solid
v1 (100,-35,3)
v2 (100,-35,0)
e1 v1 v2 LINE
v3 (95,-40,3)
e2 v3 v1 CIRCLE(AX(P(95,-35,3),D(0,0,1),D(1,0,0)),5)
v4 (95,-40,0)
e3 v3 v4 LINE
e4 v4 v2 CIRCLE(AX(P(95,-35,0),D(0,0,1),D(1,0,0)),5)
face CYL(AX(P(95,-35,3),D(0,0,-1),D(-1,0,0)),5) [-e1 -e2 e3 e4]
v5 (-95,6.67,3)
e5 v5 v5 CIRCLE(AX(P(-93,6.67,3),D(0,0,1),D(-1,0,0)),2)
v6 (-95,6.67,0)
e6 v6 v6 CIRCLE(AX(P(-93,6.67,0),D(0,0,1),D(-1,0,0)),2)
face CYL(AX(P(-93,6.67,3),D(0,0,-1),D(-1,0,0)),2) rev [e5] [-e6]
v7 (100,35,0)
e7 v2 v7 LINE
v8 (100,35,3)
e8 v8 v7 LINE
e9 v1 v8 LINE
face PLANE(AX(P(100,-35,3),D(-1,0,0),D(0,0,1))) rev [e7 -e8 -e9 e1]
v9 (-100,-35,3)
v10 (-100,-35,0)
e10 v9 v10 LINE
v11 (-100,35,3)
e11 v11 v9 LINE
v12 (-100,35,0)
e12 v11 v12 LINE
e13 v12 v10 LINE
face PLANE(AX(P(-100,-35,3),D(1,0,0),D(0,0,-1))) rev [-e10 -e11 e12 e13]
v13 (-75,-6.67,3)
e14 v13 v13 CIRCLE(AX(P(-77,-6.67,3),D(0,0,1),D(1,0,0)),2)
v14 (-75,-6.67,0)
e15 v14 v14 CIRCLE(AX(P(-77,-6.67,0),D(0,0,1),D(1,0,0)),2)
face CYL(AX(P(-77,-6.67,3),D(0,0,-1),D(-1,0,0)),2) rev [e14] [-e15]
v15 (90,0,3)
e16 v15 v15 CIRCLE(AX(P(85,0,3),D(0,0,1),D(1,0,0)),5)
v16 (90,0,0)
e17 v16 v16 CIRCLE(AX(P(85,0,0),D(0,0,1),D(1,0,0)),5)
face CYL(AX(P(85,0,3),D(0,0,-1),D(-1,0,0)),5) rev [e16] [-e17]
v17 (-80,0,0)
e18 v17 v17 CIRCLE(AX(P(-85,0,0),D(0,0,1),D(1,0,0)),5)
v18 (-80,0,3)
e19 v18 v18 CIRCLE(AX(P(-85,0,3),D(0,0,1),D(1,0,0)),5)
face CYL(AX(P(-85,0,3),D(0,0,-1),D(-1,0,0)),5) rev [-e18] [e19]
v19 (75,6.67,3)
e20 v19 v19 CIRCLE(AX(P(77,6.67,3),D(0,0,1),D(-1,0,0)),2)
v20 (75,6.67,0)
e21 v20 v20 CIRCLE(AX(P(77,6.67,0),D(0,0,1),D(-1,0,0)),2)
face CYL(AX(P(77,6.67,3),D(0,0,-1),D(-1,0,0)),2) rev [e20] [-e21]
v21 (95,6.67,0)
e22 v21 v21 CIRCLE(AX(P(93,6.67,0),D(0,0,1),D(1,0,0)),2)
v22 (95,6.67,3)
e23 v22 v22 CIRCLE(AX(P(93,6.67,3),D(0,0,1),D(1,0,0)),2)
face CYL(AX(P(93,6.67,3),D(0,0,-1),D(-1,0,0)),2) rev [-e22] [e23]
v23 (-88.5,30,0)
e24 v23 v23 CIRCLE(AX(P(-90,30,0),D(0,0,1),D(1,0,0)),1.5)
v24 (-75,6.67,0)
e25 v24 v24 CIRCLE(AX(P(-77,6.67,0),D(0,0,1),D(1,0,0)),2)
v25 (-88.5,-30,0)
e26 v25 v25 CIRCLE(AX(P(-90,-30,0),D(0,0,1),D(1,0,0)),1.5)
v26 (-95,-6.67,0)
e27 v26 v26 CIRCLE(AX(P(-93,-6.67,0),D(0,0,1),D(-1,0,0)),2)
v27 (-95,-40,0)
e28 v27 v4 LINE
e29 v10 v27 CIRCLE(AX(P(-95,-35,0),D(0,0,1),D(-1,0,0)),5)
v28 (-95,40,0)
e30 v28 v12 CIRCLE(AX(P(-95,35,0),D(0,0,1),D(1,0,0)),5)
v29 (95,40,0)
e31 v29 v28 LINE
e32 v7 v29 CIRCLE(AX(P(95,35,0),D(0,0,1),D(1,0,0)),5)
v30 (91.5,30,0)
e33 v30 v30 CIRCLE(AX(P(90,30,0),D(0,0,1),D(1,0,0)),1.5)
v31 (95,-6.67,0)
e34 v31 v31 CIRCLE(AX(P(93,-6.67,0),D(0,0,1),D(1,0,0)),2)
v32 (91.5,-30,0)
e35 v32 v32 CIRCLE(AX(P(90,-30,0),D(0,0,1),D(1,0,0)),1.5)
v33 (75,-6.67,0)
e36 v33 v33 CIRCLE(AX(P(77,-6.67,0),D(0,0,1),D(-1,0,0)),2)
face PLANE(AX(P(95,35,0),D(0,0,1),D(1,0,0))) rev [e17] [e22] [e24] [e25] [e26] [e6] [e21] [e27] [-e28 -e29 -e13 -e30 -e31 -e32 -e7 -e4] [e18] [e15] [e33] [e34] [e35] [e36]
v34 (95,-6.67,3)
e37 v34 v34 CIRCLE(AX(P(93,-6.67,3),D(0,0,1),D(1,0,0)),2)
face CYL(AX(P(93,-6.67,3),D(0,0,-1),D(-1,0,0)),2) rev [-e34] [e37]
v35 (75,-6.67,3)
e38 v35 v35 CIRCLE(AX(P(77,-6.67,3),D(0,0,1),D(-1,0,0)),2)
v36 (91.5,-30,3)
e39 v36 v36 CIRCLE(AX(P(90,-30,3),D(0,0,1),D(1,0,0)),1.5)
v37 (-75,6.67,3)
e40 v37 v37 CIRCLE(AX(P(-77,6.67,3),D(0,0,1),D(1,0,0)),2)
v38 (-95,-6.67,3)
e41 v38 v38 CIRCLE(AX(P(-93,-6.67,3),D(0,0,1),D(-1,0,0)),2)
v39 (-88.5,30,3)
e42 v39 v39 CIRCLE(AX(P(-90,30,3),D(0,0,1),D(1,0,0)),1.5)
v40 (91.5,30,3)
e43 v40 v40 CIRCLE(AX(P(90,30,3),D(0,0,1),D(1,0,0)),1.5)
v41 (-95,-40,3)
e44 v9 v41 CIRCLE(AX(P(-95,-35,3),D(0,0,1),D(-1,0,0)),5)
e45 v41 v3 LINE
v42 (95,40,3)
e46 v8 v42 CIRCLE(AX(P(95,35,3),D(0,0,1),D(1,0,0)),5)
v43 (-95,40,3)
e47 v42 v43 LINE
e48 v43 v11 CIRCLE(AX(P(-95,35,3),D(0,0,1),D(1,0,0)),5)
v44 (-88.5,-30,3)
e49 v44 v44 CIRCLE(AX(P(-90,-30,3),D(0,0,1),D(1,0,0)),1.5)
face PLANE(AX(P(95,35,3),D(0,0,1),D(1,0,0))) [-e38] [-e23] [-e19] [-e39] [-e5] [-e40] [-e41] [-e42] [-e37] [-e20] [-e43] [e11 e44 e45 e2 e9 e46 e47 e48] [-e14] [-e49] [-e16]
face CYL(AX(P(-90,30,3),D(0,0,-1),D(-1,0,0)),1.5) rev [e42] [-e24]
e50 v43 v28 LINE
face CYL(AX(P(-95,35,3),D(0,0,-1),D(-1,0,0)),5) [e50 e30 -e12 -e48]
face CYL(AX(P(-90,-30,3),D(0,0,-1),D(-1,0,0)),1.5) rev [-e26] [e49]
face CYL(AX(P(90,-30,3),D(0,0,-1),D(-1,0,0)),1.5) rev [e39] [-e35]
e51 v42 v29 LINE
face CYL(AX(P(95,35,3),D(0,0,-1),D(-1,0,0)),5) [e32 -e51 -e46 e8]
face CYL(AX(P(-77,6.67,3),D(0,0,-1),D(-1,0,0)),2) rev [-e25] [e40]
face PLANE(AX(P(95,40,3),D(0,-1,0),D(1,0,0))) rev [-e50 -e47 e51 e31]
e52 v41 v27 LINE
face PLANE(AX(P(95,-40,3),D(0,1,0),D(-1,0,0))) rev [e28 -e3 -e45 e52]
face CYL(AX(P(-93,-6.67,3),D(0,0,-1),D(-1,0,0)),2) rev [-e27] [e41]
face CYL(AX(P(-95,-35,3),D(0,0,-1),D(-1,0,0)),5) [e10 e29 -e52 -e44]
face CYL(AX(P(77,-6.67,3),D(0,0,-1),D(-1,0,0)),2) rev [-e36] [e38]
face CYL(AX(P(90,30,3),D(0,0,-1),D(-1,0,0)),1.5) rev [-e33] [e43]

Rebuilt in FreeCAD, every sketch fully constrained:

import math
import FreeCAD as App
import Part
import Sketcher
from FreeCAD import Vector
Q = App.Units.Quantity

doc = App.newDocument("Part")
body = doc.addObject("PartDesign::Body", "Body")

# Sketch on XY plane
sketch1 = body.newObject("Sketcher::SketchObject", "Sketch")
sketch1.AttachmentSupport = (doc.getObject("XY_Plane"), [""])
sketch1.MapMode = "FlatFace"
sketch1.addGeometry([
    Part.LineSegment(Vector(-95, -40, 0), Vector(95, -40, 0)),  # 0
    Part.ArcOfCircle(Part.Circle(Vector(95, -35, 0), Vector(0, 0, 1), 5), math.radians(-90), math.radians(0)),  # 1
    Part.LineSegment(Vector(100, -35, 0), Vector(100, 35, 0)),  # 2
    Part.ArcOfCircle(Part.Circle(Vector(95, 35, 0), Vector(0, 0, 1), 5), math.radians(0), math.radians(90)),  # 3
    Part.LineSegment(Vector(95, 40, 0), Vector(-95, 40, 0)),  # 4
    Part.ArcOfCircle(Part.Circle(Vector(-95, 35, 0), Vector(0, 0, 1), 5), math.radians(90), math.radians(180)),  # 5
    Part.LineSegment(Vector(-100, 35, 0), Vector(-100, -35, 0)),  # 6
    Part.ArcOfCircle(Part.Circle(Vector(-95, -35, 0), Vector(0, 0, 1), 5), math.radians(180), math.radians(270)),  # 7
    Part.Circle(Vector(90, -30, 0), Vector(0, 0, 1), 1.5),  # 8
    Part.Circle(Vector(93, -6.7, 0), Vector(0, 0, 1), 2),  # 9
    Part.Circle(Vector(77, -6.7, 0), Vector(0, 0, 1), 2),  # 10
    Part.Circle(Vector(-90, -30, 0), Vector(0, 0, 1), 1.5),  # 11
    Part.Circle(Vector(-77, -6.7, 0), Vector(0, 0, 1), 2),  # 12
    Part.Circle(Vector(-93, -6.7, 0), Vector(0, 0, 1), 2),  # 13
    Part.Circle(Vector(85, 0, 0), Vector(0, 0, 1), 5),  # 14
    Part.Circle(Vector(93, 6.7, 0), Vector(0, 0, 1), 2),  # 15
    Part.Circle(Vector(77, 6.7, 0), Vector(0, 0, 1), 2),  # 16
    Part.Circle(Vector(90, 30, 0), Vector(0, 0, 1), 1.5),  # 17
    Part.Circle(Vector(-85, 0, 0), Vector(0, 0, 1), 5),  # 18
    Part.Circle(Vector(-77, 6.7, 0), Vector(0, 0, 1), 2),  # 19
    Part.Circle(Vector(-93, 6.7, 0), Vector(0, 0, 1), 2),  # 20
    Part.Circle(Vector(-90, 30, 0), Vector(0, 0, 1), 1.5),  # 21
], False)
sketch1.addConstraint([
    Sketcher.Constraint("Tangent", 0, 2, 1, 1),
    Sketcher.Constraint("Tangent", 1, 2, 2, 1),
    Sketcher.Constraint("Tangent", 2, 2, 3, 1),
    Sketcher.Constraint("Tangent", 3, 2, 4, 1),
    Sketcher.Constraint("Tangent", 4, 2, 5, 1),
    Sketcher.Constraint("Tangent", 5, 2, 6, 1),
    Sketcher.Constraint("Tangent", 6, 2, 7, 1),
    Sketcher.Constraint("Tangent", 7, 2, 0, 1),
    Sketcher.Constraint("Horizontal", 0),
    Sketcher.Constraint("Vertical", 2),
    Sketcher.Constraint("Horizontal", 4),
    Sketcher.Constraint("Vertical", 6),
    Sketcher.Constraint("Equal", 1, 3),
    Sketcher.Constraint("Equal", 3, 5),
    Sketcher.Constraint("Equal", 5, 7),
    Sketcher.Constraint("Equal", 9, 10),
    Sketcher.Constraint("Equal", 8, 11),
    Sketcher.Constraint("Equal", 10, 12),
    Sketcher.Constraint("Equal", 12, 13),
    Sketcher.Constraint("Equal", 7, 14),
    Sketcher.Constraint("Equal", 13, 15),
    Sketcher.Constraint("Equal", 15, 16),
    Sketcher.Constraint("Equal", 11, 17),
    Sketcher.Constraint("Equal", 14, 18),
    Sketcher.Constraint("Equal", 16, 19),
    Sketcher.Constraint("Equal", 19, 20),
    Sketcher.Constraint("Equal", 17, 21),
    Sketcher.Constraint("Symmetric", 1, 3, 5, 3, -1, 1),
    Sketcher.Constraint("Symmetric", 13, 3, 15, 3, -1, 1),
    Sketcher.Constraint("Symmetric", 12, 3, 16, 3, -1, 1),
    Sketcher.Constraint("Symmetric", 11, 3, 17, 3, -1, 1),
    Sketcher.Constraint("Symmetric", 14, 3, 18, 3, -1, 1),
    Sketcher.Constraint("Symmetric", 10, 3, 19, 3, -1, 1),
    Sketcher.Constraint("Symmetric", 9, 3, 20, 3, -1, 1),
    Sketcher.Constraint("Symmetric", 8, 3, 21, 3, -1, 1),
    Sketcher.Constraint("Symmetric", 8, 3, 11, 3, -2),
    Sketcher.Constraint("Symmetric", 10, 3, 12, 3, -2),
    Sketcher.Constraint("Symmetric", 9, 3, 13, 3, -2),
    Sketcher.Constraint("PointOnObject", 14, 3, -1),
    Sketcher.Constraint("Horizontal", 9, 3, 10, 3),
    Sketcher.Constraint("Diameter", 8, Q("3 mm")),
    Sketcher.Constraint("Diameter", 9, Q("4 mm")),
    Sketcher.Constraint("Diameter", 14, Q("10 mm")),
    Sketcher.Constraint("DistanceX", 0, 1, 0, 2, Q("190 mm")),
    Sketcher.Constraint("DistanceY", 2, 1, 2, 2, Q("70 mm")),
    Sketcher.Constraint("DistanceX", -1, 1, 8, 3, Q("90 mm")),
    Sketcher.Constraint("DistanceY", 8, 3, -1, 1, Q("30 mm")),
    Sketcher.Constraint("DistanceX", -1, 1, 9, 3, Q("93 mm")),
    Sketcher.Constraint("DistanceX", -1, 1, 10, 3, Q("77 mm")),
    Sketcher.Constraint("DistanceX", -1, 1, 14, 3, Q("85 mm")),
    Sketcher.Constraint("DistanceY", 9, 3, -1, 1, Q("6.67 mm")),
])
pad1 = body.newObject("PartDesign::Pad", "Pad")
pad1.Profile = sketch1
pad1.Length = 3

doc.recompute()
